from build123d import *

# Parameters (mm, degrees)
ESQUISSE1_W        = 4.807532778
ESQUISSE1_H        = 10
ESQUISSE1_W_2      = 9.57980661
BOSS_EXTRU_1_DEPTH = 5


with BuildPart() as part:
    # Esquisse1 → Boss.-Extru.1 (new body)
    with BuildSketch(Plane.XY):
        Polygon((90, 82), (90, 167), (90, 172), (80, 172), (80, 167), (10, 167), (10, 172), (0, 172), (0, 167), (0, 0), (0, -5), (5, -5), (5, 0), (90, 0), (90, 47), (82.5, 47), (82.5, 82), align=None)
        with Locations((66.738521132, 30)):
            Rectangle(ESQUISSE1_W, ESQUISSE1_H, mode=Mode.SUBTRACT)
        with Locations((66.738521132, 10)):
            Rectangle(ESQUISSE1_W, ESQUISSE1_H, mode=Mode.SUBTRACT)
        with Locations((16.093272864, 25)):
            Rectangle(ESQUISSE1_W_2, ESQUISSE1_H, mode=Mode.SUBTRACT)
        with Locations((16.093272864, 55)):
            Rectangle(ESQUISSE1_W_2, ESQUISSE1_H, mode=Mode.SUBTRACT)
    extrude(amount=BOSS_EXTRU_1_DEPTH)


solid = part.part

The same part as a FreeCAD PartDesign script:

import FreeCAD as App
import Part
import Sketcher


def add_polygon(sketch, points):
    """Adds a closed chain of lines whose ends are joined by coincident constraints."""
    first, n = sketch.GeometryCount, len(points)
    for a, b in zip(points, points[1:] + points[:1]):
        sketch.addGeometry(Part.LineSegment(App.Vector(*a, 0), App.Vector(*b, 0)), False)
    for i in range(n):
        sketch.addConstraint(Sketcher.Constraint("Coincident", first + i, 2, first + (i + 1) % n, 1))

doc = App.newDocument("Part")
body = doc.addObject("PartDesign::Body", "Body")

sketch1 = body.newObject("Sketcher::SketchObject", "Sketch")
sketch1.AttachmentSupport = (doc.getObject("XY_Plane"), [""])
sketch1.MapMode = "FlatFace"
add_polygon(sketch1, [(90, 82), (90, 172), (80, 172), (80, 167), (10, 167), (10, 172), (0, 172), (0, -5), (5, -5), (5, 0), (90, 0), (90, 47), (82.5, 47), (82.5, 82)])
add_polygon(sketch1, [(20.9, 20), (11.3, 20), (11.3, 30), (20.9, 30)])
add_polygon(sketch1, [(69.1, 5), (64.3, 5), (64.3, 15), (69.1, 15)])
add_polygon(sketch1, [(69.1, 25), (64.3, 25), (64.3, 35), (69.1, 35)])
add_polygon(sketch1, [(20.9, 50), (11.3, 50), (11.3, 60), (20.9, 60)])
sketch1.addConstraint([
    Sketcher.Constraint("Vertical", 0),
    Sketcher.Constraint("Horizontal", 1),
    Sketcher.Constraint("Vertical", 2),
    Sketcher.Constraint("Horizontal", 3),
    Sketcher.Constraint("Vertical", 4),
    Sketcher.Constraint("Horizontal", 5),
    Sketcher.Constraint("Vertical", 6),
    Sketcher.Constraint("Horizontal", 7),
    Sketcher.Constraint("Vertical", 8),
    Sketcher.Constraint("Horizontal", 9),
    Sketcher.Constraint("Vertical", 10),
    Sketcher.Constraint("Horizontal", 11),
    Sketcher.Constraint("Vertical", 12),
    Sketcher.Constraint("Horizontal", 13),
    Sketcher.Constraint("Horizontal", 14),
    Sketcher.Constraint("Vertical", 15),
    Sketcher.Constraint("Horizontal", 16),
    Sketcher.Constraint("Vertical", 17),
    Sketcher.Constraint("Horizontal", 18),
    Sketcher.Constraint("Vertical", 19),
    Sketcher.Constraint("Horizontal", 20),
    Sketcher.Constraint("Vertical", 21),
    Sketcher.Constraint("Horizontal", 22),
    Sketcher.Constraint("Vertical", 23),
    Sketcher.Constraint("Horizontal", 24),
    Sketcher.Constraint("Vertical", 25),
    Sketcher.Constraint("Horizontal", 26),
    Sketcher.Constraint("Vertical", 27),
    Sketcher.Constraint("Horizontal", 28),
    Sketcher.Constraint("Vertical", 29),
    Sketcher.Constraint("PointOnObject", 5, 2, -2),
    Sketcher.Constraint("PointOnObject", 8, 2, -1),
    Sketcher.Constraint("Horizontal", 1, 2, 4, 2),
    Sketcher.Constraint("Vertical", 0, 2, 9, 2),
    Sketcher.Constraint("Vertical", 19, 2, 22, 2),
    Sketcher.Constraint("Vertical", 21, 2, 24, 2),
    Sketcher.Constraint("Vertical", 15, 2, 26, 2),
    Sketcher.Constraint("Vertical", 17, 2, 28, 2),
    Sketcher.Constraint("Equal", 1, 5),
    Sketcher.Constraint("Equal", 7, 2),
    Sketcher.Constraint("Equal", 4, 8),
    Sketcher.Constraint("Equal", 5, 15),
    Sketcher.Constraint("Equal", 17, 19),
    Sketcher.Constraint("Equal", 21, 23),
    Sketcher.Constraint("Equal", 25, 27),
    Sketcher.Constraint("DistanceX", 1, 2, 1, 1, 10.0),
    Sketcher.Constraint("DistanceX", 3, 2, 3, 1, 70.0),
    Sketcher.Constraint("DistanceX", 7, 1, 7, 2, 5.0),
    Sketcher.Constraint("DistanceY", 0, 1, 0, 2, 90.0),
    Sketcher.Constraint("DistanceY", 6, 2, 6, 1, 177.0),
    Sketcher.Constraint("DistanceY", 10, 1, 10, 2, 47.0),
    Sketcher.Constraint("DistanceX", 11, 2, 11, 1, 7.5),
    Sketcher.Constraint("DistanceY", -1, 1, 14, 2, 20.0),
    Sketcher.Constraint("DistanceY", -1, 1, 18, 2, 5.0),
    Sketcher.Constraint("DistanceY", -1, 1, 22, 2, 25.0),
    Sketcher.Constraint("DistanceY", -1, 1, 26, 2, 50.0),
    Sketcher.Constraint("DistanceX", 14, 2, 14, 1, 9.579807),
    Sketcher.Constraint("DistanceX", 18, 2, 18, 1, 4.807533),
    Sketcher.Constraint("DistanceX", -1, 1, 14, 2, 11.30337),
    Sketcher.Constraint("DistanceX", 17, 2, 18, 2, 43.451579),
])
pad1 = body.newObject("PartDesign::Pad", "Pad")
pad1.Profile = sketch1
pad1.Length = 5

doc.recompute()
